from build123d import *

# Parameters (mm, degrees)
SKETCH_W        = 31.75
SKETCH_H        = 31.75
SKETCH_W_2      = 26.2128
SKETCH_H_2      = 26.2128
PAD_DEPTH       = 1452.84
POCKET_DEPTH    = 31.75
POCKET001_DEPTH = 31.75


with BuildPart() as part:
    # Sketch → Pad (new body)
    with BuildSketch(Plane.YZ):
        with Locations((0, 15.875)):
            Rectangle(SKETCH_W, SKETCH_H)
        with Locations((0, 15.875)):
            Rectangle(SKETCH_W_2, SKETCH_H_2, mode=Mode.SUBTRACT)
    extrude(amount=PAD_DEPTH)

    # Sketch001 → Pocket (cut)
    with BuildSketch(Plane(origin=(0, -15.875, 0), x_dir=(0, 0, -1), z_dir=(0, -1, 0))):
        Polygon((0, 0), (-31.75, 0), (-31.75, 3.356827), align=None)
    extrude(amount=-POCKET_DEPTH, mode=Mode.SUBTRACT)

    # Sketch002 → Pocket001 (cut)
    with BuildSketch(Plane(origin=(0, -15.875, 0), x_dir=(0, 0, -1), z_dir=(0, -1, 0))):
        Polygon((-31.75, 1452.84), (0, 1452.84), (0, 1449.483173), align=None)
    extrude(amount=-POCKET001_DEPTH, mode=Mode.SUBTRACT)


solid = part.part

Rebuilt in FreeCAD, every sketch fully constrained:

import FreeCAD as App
import Part
import Sketcher
from FreeCAD import Vector
Q = App.Units.Quantity

doc = App.newDocument("Part")
body = doc.addObject("PartDesign::Body", "Body")

sketch1 = doc.addObject("Sketcher::SketchObject", "Sketch")
body.addObject(sketch1)
sketch1.AttachmentSupport = (doc.YZ_Plane, [""])
sketch1.MapMode = "FlatFace"
sketch1.addGeometry(Part.LineSegment(Vector(-16, 32, 0), Vector(-16, 0, 0)), False)
sketch1.addGeometry(Part.LineSegment(Vector(-16, 0, 0), Vector(16, 0, 0)), False)
sketch1.addGeometry(Part.LineSegment(Vector(16, 0, 0), Vector(16, 32, 0)), False)
sketch1.addGeometry(Part.LineSegment(Vector(16, 32, 0), Vector(-16, 32, 0)), False)
sketch1.addGeometry(Part.LineSegment(Vector(13, 3, 0), Vector(-13, 3, 0)), False)
sketch1.addGeometry(Part.LineSegment(Vector(-13, 3, 0), Vector(-13, 29, 0)), False)
sketch1.addGeometry(Part.LineSegment(Vector(-13, 29, 0), Vector(13, 29, 0)), False)
sketch1.addGeometry(Part.LineSegment(Vector(13, 29, 0), Vector(13, 3, 0)), False)
sketch1.addConstraint(Sketcher.Constraint("Coincident", 0, 2, 1, 1))
sketch1.addConstraint(Sketcher.Constraint("Coincident", 1, 2, 2, 1))
sketch1.addConstraint(Sketcher.Constraint("Coincident", 2, 2, 3, 1))
sketch1.addConstraint(Sketcher.Constraint("Coincident", 3, 2, 0, 1))
sketch1.addConstraint(Sketcher.Constraint("Coincident", 4, 2, 5, 1))
sketch1.addConstraint(Sketcher.Constraint("Coincident", 5, 2, 6, 1))
sketch1.addConstraint(Sketcher.Constraint("Coincident", 6, 2, 7, 1))
sketch1.addConstraint(Sketcher.Constraint("Coincident", 7, 2, 4, 1))
sketch1.addConstraint(Sketcher.Constraint("Vertical", 0))
sketch1.addConstraint(Sketcher.Constraint("Horizontal", 1))
sketch1.addConstraint(Sketcher.Constraint("Vertical", 2))
sketch1.addConstraint(Sketcher.Constraint("Horizontal", 3))
sketch1.addConstraint(Sketcher.Constraint("Horizontal", 4))
sketch1.addConstraint(Sketcher.Constraint("Vertical", 5))
sketch1.addConstraint(Sketcher.Constraint("Horizontal", 6))
sketch1.addConstraint(Sketcher.Constraint("Vertical", 7))
sketch1.addConstraint(Sketcher.Constraint("Symmetric", 0, 2, 1, 2, -1, 1))
sketch1.addConstraint(Sketcher.Constraint("Equal", 3, 0))
sketch1.addConstraint(Sketcher.Constraint("Equal", 6, 5))
sketch1.addConstraint(Sketcher.Constraint("DistanceX", 1, 1, 1, 2, Q("1.25 in")))
sketch1.addConstraint(Sketcher.Constraint("DistanceX", 4, 2, 4, 1, Q("1.032 in")))
sketch1.addConstraint(Sketcher.Constraint("DistanceX", 4, 2, -1, 1, Q("0.516 in")))
sketch1.addConstraint(Sketcher.Constraint("DistanceY", -1, 1, 4, 2, Q("0.109 in")))
pad1 = doc.addObject("PartDesign::Pad", "Pad")
body.addObject(pad1)
pad1.Profile = sketch1
pad1.Length = 1452.84

sketch2 = doc.addObject("Sketcher::SketchObject", "Sketch001")
body.addObject(sketch2)
sketch2.AttachmentSupport = (doc.XZ_Plane, [""])
sketch2.MapMode = "FlatFace"
sketch2.AttachmentOffset = App.Placement(Vector(0, 0, 0.625 * 25.4), App.Rotation())
sketch2.addGeometry(Part.LineSegment(Vector(0, 31.8, 0), Vector(0, 0, 0)), False)
sketch2.addGeometry(Part.LineSegment(Vector(0, 0, 0), Vector(3.4, 31.8, 0)), False)
sketch2.addGeometry(Part.LineSegment(Vector(3.4, 31.8, 0), Vector(0, 31.8, 0)), False)
sketch2.addConstraint(Sketcher.Constraint("Coincident", 0, 2, 1, 1))
sketch2.addConstraint(Sketcher.Constraint("Coincident", 1, 2, 2, 1))
sketch2.addConstraint(Sketcher.Constraint("Coincident", 2, 2, 0, 1))
sketch2.addConstraint(Sketcher.Constraint("Vertical", 0))
sketch2.addConstraint(Sketcher.Constraint("Horizontal", 2))
sketch2.addConstraint(Sketcher.Constraint("Coincident", 0, 2, -1, 1))
sketch2.addConstraint(Sketcher.Constraint("DistanceY", 0, 2, 0, 1, Q("1.25 in")))
sketch2.addConstraint(Sketcher.Constraint("Distance", 1, 31.92696))
pocket1 = doc.addObject("PartDesign::Pocket", "Pocket")
body.addObject(pocket1)
pocket1.Profile = sketch2
pocket1.Length = Q("1.25 in")

sketch3 = doc.addObject("Sketcher::SketchObject", "Sketch002")
body.addObject(sketch3)
sketch3.AttachmentSupport = (doc.XZ_Plane, [""])
sketch3.MapMode = "FlatFace"
sketch3.AttachmentOffset = App.Placement(Vector(0, 0, 0.625 * 25.4), App.Rotation())
sketch3.addGeometry(Part.LineSegment(Vector(1452.8, 0, 0), Vector(1452.8, 31.8, 0)), False)
sketch3.addGeometry(Part.LineSegment(Vector(1452.8, 31.8, 0), Vector(1449.5, 0, 0)), False)
sketch3.addGeometry(Part.LineSegment(Vector(1449.5, 0, 0), Vector(1452.8, 0, 0)), False)
sketch3.addConstraint(Sketcher.Constraint("Coincident", 0, 2, 1, 1))
sketch3.addConstraint(Sketcher.Constraint("Coincident", 1, 2, 2, 1))
sketch3.addConstraint(Sketcher.Constraint("Coincident", 2, 2, 0, 1))
sketch3.addConstraint(Sketcher.Constraint("Vertical", 0))
sketch3.addConstraint(Sketcher.Constraint("Horizontal", 2))
sketch3.addConstraint(Sketcher.Constraint("PointOnObject", 1, 2, -1))
sketch3.addConstraint(Sketcher.Constraint("DistanceY", 0, 1, 0, 2, Q("1.25 in")))
sketch3.addConstraint(Sketcher.Constraint("DistanceX", -1, 1, 0, 2, 1452.84))
sketch3.addConstraint(Sketcher.Constraint("Distance", 1, 31.92696))
pocket2 = doc.addObject("PartDesign::Pocket", "Pocket001")
body.addObject(pocket2)
pocket2.Profile = sketch3
pocket2.Length = Q("1.25 in")

doc.recompute()
